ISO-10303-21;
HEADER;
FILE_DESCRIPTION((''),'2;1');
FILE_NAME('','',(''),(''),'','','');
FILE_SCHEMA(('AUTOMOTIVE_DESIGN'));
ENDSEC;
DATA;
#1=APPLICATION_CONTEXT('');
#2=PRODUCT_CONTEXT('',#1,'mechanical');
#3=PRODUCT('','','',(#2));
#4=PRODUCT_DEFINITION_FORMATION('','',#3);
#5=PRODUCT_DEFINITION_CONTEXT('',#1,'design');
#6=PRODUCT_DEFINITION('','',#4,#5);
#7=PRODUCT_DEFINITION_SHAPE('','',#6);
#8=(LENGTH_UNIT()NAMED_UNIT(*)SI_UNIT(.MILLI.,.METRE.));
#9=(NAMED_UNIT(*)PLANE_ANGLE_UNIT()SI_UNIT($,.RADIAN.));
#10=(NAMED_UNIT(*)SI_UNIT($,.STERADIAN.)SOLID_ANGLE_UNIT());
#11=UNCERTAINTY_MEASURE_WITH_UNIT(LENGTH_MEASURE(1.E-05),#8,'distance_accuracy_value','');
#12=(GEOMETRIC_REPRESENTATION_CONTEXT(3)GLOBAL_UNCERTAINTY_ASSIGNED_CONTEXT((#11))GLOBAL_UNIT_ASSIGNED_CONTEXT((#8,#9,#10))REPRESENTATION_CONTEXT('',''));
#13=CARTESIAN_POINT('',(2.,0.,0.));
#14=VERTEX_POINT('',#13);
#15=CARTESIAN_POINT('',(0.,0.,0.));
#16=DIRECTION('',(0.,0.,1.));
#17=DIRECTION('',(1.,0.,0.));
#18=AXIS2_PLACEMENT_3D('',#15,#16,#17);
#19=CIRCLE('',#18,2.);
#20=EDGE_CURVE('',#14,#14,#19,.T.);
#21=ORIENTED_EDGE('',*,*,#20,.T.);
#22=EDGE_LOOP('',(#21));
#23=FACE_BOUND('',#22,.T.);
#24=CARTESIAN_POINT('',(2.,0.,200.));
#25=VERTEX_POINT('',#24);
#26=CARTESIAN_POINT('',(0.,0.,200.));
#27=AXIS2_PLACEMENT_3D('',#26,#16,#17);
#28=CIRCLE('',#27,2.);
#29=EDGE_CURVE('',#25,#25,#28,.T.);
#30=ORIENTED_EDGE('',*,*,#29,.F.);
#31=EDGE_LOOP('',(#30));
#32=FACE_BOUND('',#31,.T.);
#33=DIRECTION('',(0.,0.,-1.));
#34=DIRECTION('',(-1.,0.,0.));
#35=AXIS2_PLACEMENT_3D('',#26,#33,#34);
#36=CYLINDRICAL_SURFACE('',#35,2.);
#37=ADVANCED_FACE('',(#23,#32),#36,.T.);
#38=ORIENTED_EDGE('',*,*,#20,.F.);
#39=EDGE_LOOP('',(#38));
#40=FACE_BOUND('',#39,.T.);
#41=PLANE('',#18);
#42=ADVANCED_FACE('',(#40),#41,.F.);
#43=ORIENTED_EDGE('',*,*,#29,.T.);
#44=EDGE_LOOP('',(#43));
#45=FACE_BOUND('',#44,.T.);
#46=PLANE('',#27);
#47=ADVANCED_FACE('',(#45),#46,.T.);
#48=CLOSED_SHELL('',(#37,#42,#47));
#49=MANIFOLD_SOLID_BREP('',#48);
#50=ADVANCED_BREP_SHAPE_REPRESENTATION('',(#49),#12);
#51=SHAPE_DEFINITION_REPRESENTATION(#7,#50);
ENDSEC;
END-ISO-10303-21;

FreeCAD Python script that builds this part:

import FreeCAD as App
import Part
import Sketcher
Q = App.Units.Quantity

doc = App.newDocument("Part")
body = doc.addObject("PartDesign::Body", "Body")

# Sketch on XY plane
sketch1 = body.newObject("Sketcher::SketchObject", "Sketch")
sketch1.AttachmentSupport = (doc.getObject("XY_Plane"), [""])
sketch1.MapMode = "FlatFace"
sketch1.addGeometry(Part.Circle(App.Vector(0, 0, 0), App.Vector(0, 0, 1), 2), False)
sketch1.addConstraint([
    Sketcher.Constraint("Coincident", 0, 3, -1, 1),
    Sketcher.Constraint("Diameter", 0, Q("4 mm")),
])
pad1 = body.newObject("PartDesign::Pad", "Pad")
pad1.Profile = sketch1
pad1.Length = 200

doc.recompute()
